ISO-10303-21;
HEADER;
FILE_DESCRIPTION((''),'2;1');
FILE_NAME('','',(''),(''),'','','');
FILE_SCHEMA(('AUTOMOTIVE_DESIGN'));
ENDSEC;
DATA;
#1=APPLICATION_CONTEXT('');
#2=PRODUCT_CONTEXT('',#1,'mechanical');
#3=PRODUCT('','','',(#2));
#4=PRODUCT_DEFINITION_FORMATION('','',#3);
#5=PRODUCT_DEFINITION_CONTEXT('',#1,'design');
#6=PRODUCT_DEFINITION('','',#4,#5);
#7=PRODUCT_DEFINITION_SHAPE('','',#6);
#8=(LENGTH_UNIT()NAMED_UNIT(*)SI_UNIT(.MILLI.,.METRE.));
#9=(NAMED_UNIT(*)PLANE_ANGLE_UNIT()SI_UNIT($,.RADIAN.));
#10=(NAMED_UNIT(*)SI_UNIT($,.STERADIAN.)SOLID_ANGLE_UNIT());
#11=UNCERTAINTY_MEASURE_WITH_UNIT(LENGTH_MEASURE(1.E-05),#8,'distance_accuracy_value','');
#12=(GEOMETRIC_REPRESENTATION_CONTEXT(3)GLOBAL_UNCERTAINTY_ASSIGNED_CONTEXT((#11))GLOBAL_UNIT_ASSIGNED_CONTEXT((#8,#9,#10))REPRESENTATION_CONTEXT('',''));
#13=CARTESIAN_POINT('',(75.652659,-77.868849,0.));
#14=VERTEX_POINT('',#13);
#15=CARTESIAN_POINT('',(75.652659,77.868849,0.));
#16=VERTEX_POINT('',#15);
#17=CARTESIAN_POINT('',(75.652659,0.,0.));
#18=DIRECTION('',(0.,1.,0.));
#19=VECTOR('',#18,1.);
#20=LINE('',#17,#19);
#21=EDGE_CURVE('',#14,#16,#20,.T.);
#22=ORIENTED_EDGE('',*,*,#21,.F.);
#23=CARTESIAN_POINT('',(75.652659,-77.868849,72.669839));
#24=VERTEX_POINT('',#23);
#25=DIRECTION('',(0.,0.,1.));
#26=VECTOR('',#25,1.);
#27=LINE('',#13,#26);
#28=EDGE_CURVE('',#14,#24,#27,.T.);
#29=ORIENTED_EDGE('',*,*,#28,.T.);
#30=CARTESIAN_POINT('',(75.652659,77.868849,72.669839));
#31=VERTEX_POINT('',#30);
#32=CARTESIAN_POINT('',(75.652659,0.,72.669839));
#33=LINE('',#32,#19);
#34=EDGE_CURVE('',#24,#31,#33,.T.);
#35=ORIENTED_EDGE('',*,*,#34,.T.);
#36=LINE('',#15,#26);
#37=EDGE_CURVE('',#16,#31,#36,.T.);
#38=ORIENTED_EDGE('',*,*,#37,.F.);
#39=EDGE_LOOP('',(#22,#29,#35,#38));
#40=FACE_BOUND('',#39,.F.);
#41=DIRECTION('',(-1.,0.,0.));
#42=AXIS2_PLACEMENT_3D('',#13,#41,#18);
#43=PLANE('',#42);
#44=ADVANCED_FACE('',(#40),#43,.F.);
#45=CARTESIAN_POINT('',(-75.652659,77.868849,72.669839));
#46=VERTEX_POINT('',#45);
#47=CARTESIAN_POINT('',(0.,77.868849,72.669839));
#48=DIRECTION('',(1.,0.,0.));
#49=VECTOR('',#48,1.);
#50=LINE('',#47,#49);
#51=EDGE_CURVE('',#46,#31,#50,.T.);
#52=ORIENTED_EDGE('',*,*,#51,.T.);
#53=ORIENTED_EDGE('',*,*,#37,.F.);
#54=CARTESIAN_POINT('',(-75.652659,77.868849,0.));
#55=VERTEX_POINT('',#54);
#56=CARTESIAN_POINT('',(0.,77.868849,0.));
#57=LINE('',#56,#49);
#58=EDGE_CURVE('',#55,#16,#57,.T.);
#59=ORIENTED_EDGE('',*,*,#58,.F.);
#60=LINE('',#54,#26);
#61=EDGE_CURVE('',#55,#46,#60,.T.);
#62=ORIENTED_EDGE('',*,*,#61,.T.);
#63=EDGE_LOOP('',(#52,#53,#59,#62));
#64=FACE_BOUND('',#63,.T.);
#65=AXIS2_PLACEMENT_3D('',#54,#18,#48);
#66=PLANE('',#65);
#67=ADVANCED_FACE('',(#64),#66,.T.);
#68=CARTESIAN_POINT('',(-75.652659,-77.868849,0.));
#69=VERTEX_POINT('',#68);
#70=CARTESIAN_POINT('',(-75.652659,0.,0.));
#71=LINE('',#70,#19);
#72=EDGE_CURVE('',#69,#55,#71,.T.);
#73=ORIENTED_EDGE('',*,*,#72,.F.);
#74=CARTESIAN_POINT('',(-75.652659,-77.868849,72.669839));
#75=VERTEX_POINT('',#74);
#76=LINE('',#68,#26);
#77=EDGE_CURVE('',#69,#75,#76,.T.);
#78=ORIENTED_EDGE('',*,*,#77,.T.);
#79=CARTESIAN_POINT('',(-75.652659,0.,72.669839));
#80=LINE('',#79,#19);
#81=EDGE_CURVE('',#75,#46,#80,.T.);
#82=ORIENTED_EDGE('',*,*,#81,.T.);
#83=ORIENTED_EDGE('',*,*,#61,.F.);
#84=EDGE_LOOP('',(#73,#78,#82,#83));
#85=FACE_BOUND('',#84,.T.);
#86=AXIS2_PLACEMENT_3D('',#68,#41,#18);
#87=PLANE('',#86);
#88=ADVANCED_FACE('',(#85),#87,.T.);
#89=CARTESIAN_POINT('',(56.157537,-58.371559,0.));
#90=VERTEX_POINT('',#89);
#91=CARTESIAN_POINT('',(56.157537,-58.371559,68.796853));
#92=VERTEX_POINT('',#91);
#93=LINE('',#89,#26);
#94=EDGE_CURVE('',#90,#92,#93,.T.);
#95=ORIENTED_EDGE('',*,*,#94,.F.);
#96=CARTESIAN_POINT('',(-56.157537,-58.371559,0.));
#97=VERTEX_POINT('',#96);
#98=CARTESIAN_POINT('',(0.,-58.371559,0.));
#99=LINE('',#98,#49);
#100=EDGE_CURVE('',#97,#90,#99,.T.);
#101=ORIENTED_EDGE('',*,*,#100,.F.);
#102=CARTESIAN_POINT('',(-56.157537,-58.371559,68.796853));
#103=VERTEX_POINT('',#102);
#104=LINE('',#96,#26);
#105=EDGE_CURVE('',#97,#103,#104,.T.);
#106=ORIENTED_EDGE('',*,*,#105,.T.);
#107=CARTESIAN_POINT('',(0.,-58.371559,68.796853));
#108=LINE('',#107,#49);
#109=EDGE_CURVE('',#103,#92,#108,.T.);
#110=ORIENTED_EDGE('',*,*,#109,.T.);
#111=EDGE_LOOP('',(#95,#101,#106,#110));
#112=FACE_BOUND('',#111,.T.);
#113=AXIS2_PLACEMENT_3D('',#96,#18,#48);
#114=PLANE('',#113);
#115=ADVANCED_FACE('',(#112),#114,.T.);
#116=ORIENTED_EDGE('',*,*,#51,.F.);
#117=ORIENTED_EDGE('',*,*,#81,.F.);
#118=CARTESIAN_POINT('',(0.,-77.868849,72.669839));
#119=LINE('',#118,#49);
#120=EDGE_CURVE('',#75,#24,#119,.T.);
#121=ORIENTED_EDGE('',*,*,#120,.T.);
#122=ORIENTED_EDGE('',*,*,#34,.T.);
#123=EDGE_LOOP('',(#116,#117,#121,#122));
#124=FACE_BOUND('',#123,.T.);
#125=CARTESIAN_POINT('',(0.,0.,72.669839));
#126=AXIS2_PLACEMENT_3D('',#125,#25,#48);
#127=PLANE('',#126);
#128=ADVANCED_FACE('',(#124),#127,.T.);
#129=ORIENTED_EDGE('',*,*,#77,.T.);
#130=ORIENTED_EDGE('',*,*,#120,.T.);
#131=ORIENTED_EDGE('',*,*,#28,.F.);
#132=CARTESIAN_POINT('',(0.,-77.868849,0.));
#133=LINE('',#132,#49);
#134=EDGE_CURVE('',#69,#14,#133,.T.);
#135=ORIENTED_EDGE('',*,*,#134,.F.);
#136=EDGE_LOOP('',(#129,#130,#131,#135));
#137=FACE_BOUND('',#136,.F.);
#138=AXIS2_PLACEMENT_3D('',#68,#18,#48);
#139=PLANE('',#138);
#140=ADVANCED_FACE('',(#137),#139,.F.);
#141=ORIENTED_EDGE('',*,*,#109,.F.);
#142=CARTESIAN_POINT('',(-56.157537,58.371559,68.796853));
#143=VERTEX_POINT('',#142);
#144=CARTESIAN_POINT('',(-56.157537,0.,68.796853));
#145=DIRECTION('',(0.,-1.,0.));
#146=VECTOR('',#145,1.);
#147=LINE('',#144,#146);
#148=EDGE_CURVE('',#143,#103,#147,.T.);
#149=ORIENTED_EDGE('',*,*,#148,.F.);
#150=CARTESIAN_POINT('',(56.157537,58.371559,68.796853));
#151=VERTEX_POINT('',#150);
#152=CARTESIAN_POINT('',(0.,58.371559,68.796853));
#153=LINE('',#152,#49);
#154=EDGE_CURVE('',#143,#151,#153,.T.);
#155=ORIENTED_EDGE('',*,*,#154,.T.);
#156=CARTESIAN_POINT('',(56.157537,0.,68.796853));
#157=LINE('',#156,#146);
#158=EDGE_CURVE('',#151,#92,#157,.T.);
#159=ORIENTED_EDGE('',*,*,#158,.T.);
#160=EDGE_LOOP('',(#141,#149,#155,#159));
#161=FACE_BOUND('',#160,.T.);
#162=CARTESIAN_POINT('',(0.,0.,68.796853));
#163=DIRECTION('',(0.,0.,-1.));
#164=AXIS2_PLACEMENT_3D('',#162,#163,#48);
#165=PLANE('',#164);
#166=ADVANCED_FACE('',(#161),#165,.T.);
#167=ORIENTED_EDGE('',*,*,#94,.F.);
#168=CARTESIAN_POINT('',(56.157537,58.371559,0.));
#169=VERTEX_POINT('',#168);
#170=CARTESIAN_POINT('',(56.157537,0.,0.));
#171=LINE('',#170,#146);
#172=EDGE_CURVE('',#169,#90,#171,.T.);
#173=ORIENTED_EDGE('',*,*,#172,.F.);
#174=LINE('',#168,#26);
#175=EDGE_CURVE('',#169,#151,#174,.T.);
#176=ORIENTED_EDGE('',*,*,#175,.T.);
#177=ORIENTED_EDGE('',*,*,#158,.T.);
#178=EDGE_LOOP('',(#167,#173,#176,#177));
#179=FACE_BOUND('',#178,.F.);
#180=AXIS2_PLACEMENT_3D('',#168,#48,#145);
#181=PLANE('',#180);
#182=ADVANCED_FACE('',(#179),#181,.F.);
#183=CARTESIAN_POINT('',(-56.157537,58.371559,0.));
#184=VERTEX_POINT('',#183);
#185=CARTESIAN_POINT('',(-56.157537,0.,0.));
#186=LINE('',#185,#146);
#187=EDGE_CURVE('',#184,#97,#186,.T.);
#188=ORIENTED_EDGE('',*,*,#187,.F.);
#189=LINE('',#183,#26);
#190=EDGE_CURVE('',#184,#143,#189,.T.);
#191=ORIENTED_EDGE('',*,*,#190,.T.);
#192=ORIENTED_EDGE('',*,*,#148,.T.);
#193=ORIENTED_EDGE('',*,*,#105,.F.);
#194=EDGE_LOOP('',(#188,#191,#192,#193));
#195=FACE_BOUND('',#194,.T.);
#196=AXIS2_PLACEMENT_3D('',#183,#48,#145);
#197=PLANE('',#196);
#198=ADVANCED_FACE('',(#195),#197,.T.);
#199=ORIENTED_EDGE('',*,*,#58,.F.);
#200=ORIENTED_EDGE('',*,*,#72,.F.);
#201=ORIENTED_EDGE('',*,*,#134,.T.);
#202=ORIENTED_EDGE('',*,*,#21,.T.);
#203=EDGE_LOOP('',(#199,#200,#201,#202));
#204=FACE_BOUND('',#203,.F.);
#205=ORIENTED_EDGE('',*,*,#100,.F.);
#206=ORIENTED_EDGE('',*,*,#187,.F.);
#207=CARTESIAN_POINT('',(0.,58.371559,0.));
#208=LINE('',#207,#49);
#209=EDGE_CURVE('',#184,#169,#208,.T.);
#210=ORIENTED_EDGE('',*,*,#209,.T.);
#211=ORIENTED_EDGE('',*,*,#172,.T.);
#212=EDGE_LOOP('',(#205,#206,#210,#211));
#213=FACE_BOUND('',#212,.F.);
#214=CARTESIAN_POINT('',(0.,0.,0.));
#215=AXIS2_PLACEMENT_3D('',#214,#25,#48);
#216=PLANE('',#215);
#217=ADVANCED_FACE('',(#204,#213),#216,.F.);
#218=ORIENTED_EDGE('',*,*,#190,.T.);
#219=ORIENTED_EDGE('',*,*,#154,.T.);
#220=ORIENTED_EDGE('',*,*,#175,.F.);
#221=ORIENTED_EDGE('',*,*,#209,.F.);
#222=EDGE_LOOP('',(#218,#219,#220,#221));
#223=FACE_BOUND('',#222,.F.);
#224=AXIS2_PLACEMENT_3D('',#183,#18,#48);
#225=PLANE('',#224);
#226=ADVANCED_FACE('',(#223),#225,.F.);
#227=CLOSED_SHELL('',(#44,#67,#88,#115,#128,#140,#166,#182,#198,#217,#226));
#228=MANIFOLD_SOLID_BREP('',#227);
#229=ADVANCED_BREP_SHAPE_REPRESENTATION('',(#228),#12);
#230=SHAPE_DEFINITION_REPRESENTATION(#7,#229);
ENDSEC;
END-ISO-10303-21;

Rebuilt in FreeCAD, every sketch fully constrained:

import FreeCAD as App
import Part
import Sketcher
from FreeCAD import Vector
Q = App.Units.Quantity

doc = App.newDocument("Part")
body = doc.addObject("PartDesign::Body", "Body")

# Sketch on XY plane
sketch1 = body.newObject("Sketcher::SketchObject", "Sketch")
sketch1.AttachmentSupport = (doc.getObject("XY_Plane"), [""])
sketch1.MapMode = "FlatFace"
sketch1.addGeometry(Part.LineSegment(Vector(-76, 78, 0), Vector(-76, -78, 0)), False)
sketch1.addGeometry(Part.LineSegment(Vector(-76, -78, 0), Vector(76, -78, 0)), False)
sketch1.addGeometry(Part.LineSegment(Vector(76, -78, 0), Vector(76, 78, 0)), False)
sketch1.addGeometry(Part.LineSegment(Vector(76, 78, 0), Vector(-76, 78, 0)), False)
sketch1.addConstraint(Sketcher.Constraint("Coincident", 0, 2, 1, 1))
sketch1.addConstraint(Sketcher.Constraint("Coincident", 1, 2, 2, 1))
sketch1.addConstraint(Sketcher.Constraint("Coincident", 2, 2, 3, 1))
sketch1.addConstraint(Sketcher.Constraint("Coincident", 3, 2, 0, 1))
sketch1.addConstraint(Sketcher.Constraint("Vertical", 0))
sketch1.addConstraint(Sketcher.Constraint("Horizontal", 1))
sketch1.addConstraint(Sketcher.Constraint("Vertical", 2))
sketch1.addConstraint(Sketcher.Constraint("Horizontal", 3))
sketch1.addConstraint(Sketcher.Constraint("Symmetric", 0, 2, 2, 2, -1, 1))
sketch1.addConstraint(Sketcher.Constraint("DistanceY", 0, 2, 0, 1, Q("155.737698 mm")))
sketch1.addConstraint(Sketcher.Constraint("DistanceX", 1, 1, 1, 2, Q("151.305318 mm")))
pad1 = body.newObject("PartDesign::Pad", "Pad")
pad1.Profile = sketch1
pad1.Length = 72.669839

# Sketch on XY plane
sketch2 = body.newObject("Sketcher::SketchObject", "Sketch001")
sketch2.AttachmentSupport = (doc.getObject("XY_Plane"), [""])
sketch2.MapMode = "FlatFace"
sketch2.addGeometry(Part.LineSegment(Vector(-56, -58, 0), Vector(-56, 58, 0)), False)
sketch2.addGeometry(Part.LineSegment(Vector(-56, 58, 0), Vector(56, 58, 0)), False)
sketch2.addGeometry(Part.LineSegment(Vector(56, 58, 0), Vector(56, -58, 0)), False)
sketch2.addGeometry(Part.LineSegment(Vector(56, -58, 0), Vector(-56, -58, 0)), False)
sketch2.addConstraint(Sketcher.Constraint("Coincident", 0, 2, 1, 1))
sketch2.addConstraint(Sketcher.Constraint("Coincident", 1, 2, 2, 1))
sketch2.addConstraint(Sketcher.Constraint("Coincident", 2, 2, 3, 1))
sketch2.addConstraint(Sketcher.Constraint("Coincident", 3, 2, 0, 1))
sketch2.addConstraint(Sketcher.Constraint("Vertical", 0))
sketch2.addConstraint(Sketcher.Constraint("Horizontal", 1))
sketch2.addConstraint(Sketcher.Constraint("Vertical", 2))
sketch2.addConstraint(Sketcher.Constraint("Horizontal", 3))
sketch2.addConstraint(Sketcher.Constraint("Symmetric", 0, 2, 2, 2, -1, 1))
sketch2.addConstraint(Sketcher.Constraint("DistanceX", 1, 1, 1, 2, Q("112.315074 mm")))
sketch2.addConstraint(Sketcher.Constraint("DistanceY", 0, 1, 0, 2, Q("116.743118 mm")))
pocket1 = body.newObject("PartDesign::Pocket", "Pocket")
pocket1.Profile = sketch2
pocket1.Length = 68.796853
pocket1.Reversed = True

doc.recompute()
